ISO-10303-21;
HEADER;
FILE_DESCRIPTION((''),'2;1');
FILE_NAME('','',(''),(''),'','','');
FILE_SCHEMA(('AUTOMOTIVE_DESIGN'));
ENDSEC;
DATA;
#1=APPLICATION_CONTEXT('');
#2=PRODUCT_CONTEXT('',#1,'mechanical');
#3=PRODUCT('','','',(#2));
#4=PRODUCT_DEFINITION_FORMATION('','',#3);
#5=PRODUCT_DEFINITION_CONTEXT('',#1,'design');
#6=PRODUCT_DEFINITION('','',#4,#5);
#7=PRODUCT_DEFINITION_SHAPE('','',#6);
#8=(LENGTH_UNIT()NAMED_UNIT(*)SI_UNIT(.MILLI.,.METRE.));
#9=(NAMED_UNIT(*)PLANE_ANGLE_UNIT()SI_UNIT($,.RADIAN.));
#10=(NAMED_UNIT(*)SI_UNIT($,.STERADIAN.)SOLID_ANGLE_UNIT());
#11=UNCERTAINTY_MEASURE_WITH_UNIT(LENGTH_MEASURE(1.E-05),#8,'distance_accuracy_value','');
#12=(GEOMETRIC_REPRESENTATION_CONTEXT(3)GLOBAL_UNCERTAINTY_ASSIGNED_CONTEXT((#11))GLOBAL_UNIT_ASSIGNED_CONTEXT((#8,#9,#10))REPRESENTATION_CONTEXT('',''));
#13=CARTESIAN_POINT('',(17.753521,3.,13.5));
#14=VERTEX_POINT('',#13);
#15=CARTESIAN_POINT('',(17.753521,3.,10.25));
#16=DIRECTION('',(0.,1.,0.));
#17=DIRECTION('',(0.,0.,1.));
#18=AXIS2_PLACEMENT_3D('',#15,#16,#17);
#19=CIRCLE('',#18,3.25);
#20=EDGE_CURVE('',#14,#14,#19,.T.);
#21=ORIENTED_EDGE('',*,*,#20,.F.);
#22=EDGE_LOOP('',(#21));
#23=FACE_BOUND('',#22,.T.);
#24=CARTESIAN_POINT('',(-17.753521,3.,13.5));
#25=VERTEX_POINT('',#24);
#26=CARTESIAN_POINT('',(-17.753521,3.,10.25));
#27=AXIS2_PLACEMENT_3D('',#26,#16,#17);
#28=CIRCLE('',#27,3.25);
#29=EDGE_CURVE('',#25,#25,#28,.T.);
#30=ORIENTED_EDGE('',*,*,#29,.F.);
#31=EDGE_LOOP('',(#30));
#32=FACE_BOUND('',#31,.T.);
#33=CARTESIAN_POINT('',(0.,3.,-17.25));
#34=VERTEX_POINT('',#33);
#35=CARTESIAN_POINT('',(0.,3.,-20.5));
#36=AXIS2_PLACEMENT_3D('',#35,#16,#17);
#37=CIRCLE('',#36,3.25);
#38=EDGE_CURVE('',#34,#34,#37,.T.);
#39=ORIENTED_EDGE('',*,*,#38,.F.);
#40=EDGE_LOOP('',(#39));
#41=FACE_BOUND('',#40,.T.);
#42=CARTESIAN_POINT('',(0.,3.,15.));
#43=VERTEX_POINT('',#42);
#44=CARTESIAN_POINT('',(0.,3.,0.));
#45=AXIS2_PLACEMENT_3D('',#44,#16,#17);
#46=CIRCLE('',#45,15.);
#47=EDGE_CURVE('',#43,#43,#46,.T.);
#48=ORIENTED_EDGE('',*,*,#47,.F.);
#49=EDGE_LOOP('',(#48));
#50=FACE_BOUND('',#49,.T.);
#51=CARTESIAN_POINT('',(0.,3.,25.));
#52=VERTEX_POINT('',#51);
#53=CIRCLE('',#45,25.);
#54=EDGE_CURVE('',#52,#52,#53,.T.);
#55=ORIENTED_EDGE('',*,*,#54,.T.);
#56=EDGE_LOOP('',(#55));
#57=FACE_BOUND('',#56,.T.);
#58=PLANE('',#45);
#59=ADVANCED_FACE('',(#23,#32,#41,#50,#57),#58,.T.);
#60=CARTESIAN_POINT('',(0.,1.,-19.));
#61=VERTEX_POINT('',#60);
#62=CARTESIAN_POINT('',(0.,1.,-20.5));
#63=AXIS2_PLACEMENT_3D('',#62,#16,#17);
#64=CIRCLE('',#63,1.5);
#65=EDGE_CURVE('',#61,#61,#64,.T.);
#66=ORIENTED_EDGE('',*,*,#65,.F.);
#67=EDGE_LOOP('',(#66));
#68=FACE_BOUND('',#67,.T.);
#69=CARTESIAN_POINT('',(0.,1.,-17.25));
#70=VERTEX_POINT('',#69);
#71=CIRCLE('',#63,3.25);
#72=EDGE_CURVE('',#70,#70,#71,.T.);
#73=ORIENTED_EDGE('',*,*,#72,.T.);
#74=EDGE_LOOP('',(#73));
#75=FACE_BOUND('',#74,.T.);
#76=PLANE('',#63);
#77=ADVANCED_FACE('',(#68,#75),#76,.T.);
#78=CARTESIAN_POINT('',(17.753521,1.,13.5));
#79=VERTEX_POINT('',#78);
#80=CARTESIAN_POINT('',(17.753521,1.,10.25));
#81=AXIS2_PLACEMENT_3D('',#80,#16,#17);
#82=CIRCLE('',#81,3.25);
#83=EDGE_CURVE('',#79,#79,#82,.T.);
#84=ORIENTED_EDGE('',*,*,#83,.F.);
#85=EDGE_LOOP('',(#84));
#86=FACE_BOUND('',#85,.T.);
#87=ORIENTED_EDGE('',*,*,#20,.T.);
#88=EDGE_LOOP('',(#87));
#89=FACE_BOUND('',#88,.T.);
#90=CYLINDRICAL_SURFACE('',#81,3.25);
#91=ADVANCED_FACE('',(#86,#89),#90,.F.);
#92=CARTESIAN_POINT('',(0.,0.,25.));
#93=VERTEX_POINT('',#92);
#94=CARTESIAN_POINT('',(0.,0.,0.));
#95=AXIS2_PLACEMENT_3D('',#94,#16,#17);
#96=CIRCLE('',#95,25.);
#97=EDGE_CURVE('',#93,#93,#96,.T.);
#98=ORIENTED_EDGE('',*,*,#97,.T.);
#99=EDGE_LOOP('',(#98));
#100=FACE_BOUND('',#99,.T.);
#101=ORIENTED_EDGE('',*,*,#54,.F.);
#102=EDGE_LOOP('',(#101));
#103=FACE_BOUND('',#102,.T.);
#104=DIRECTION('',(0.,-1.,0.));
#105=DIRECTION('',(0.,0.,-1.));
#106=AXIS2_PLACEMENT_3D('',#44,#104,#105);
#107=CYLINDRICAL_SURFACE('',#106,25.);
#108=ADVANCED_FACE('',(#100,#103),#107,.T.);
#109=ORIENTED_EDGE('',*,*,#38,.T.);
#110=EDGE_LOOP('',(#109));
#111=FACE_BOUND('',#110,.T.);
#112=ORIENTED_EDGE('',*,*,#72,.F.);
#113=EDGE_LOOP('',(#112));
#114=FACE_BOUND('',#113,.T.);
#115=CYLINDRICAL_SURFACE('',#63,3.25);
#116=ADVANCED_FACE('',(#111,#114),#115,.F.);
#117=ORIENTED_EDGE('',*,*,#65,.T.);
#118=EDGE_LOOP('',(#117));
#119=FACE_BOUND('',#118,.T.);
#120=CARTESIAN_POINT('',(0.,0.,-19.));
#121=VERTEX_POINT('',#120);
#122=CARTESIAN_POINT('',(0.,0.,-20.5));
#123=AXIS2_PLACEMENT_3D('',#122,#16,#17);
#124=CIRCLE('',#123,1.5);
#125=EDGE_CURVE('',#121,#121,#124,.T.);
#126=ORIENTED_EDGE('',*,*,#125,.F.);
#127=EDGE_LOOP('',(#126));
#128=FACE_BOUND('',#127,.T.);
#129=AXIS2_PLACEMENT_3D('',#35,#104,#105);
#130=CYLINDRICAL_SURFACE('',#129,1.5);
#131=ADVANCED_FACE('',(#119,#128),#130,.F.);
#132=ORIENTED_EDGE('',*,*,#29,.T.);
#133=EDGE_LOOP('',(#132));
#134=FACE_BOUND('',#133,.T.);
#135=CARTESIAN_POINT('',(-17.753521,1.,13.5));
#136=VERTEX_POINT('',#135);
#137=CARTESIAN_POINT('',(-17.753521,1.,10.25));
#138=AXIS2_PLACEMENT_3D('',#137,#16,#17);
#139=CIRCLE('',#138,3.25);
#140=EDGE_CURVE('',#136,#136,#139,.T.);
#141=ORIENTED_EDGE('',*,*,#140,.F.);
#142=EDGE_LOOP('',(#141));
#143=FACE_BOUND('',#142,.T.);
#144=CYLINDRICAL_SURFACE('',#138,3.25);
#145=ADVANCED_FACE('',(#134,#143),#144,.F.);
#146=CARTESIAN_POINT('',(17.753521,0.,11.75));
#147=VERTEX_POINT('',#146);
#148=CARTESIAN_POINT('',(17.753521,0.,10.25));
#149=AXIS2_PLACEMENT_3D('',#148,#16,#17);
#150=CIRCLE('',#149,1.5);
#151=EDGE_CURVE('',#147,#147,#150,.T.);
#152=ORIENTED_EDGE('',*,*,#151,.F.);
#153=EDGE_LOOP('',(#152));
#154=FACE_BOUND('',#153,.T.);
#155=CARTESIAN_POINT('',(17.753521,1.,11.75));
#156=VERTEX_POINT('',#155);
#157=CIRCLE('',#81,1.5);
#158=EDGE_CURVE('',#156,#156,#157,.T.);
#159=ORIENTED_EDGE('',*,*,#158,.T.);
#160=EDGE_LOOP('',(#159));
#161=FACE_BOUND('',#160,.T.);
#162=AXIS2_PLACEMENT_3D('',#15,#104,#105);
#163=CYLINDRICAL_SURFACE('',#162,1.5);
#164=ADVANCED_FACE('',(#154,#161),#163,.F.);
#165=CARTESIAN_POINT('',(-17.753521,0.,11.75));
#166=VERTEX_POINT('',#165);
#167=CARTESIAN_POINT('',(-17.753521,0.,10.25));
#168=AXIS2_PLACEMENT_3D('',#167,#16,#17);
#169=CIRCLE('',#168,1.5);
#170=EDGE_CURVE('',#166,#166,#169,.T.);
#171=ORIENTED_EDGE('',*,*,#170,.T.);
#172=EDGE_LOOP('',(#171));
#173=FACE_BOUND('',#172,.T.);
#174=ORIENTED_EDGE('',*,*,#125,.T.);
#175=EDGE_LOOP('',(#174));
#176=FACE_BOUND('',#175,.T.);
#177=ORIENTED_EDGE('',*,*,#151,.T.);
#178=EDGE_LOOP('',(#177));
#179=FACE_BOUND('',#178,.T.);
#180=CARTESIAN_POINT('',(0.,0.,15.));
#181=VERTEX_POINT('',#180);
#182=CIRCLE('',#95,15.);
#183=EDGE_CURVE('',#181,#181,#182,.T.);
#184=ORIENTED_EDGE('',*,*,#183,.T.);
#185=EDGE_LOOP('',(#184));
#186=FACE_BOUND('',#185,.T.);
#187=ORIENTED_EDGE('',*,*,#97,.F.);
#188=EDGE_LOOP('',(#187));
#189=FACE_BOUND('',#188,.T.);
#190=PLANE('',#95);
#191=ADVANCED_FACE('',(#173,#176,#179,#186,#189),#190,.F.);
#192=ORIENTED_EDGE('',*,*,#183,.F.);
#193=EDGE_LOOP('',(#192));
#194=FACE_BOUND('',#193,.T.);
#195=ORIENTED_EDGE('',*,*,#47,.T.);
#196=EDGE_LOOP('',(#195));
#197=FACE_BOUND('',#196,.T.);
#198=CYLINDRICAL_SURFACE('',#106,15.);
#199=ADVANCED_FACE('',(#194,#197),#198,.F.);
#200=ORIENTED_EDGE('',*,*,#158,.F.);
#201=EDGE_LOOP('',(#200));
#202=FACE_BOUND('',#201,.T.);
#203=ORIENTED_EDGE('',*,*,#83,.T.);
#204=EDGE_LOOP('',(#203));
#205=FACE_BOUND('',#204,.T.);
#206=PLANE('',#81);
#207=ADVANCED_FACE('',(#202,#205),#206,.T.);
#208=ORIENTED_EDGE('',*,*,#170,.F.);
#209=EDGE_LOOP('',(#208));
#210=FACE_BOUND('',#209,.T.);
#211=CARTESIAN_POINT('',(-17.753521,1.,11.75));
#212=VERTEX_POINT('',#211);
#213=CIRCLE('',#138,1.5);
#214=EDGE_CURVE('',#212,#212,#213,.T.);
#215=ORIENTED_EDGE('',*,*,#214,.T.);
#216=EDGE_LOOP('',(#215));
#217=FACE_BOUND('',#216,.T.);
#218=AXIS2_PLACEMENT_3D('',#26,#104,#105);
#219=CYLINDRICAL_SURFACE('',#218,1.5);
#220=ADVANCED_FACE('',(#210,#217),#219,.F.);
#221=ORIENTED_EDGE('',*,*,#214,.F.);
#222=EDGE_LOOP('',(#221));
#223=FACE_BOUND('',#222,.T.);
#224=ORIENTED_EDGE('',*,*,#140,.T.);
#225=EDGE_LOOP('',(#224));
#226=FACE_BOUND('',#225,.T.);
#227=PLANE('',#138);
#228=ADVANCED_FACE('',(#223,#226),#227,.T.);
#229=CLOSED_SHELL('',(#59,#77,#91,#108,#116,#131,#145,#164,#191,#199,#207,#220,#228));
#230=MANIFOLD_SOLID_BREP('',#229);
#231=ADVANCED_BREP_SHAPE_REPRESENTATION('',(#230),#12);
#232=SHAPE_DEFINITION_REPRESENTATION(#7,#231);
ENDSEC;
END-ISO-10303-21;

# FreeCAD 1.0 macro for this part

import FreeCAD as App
import Part
import Sketcher
Q = App.Units.Quantity

doc = App.newDocument("Part")
params = doc.addObject("Spreadsheet::Sheet", "Params")
for row, (alias, value) in enumerate([
    ("sketch1_diameter", "50 mm"),
    ("sketch1_diameter2", "3 mm"),
    ("sketch1_diameter3", "30 mm"),
    ("pad1_length", "3 mm"),
    ("sketch2_diameter", "6.5 mm"),
    ("pocket1_length", "2 mm"),
], start=1):
    params.set(f"A{row}", alias)
    params.set(f"B{row}", "=" + value)
    params.setAlias(f"B{row}", alias)

body = doc.addObject("PartDesign::Body", "Body")

sketch1 = body.newObject("Sketcher::SketchObject", "Sketch")
sketch1.AttachmentSupport = (doc.getObject("XZ_Plane"), [""])
sketch1.MapMode = "FlatFace"
sketch1.addGeometry(Part.Circle(App.Vector(0, 0, 0), App.Vector(0, 0, 1), 25), False)
sketch1.addGeometry(Part.Circle(App.Vector(0, -20.5, 0), App.Vector(0, 0, 1), 1.5), False)
sketch1.addGeometry(Part.Circle(App.Vector(-17.8, 10.2, 0), App.Vector(0, 0, 1), 1.5), False)
sketch1.addGeometry(Part.Circle(App.Vector(0, 0, 0), App.Vector(0, 0, 1), 15), False)
sketch1.addGeometry(Part.Circle(App.Vector(17.8, 10.2, 0), App.Vector(0, 0, 1), 1.5), False)
sketch1.addConstraint(Sketcher.Constraint("Coincident", 0, 3, -1, 1))
sketch1.addConstraint(Sketcher.Constraint("Coincident", 3, 3, -1, 1))
sketch1.addConstraint(Sketcher.Constraint("Equal", 1, 2))
sketch1.addConstraint(Sketcher.Constraint("Equal", 2, 4))
sketch1.addConstraint(Sketcher.Constraint("Symmetric", 2, 3, 4, 3, -2))
sketch1.addConstraint(Sketcher.Constraint("PointOnObject", 1, 3, -2))
sketch1.addConstraint(Sketcher.Constraint("Diameter", 0, Q("50 mm")))
sketch1.addConstraint(Sketcher.Constraint("Diameter", 1, Q("3 mm")))
sketch1.addConstraint(Sketcher.Constraint("Diameter", 3, Q("30 mm")))
sketch1.addConstraint(Sketcher.Constraint("DistanceY", 1, 3, -1, 1, Q("20.5 mm")))
sketch1.addConstraint(Sketcher.Constraint("DistanceY", -1, 1, 2, 3, Q("10.25 mm")))
sketch1.addConstraint(Sketcher.Constraint("DistanceX", 2, 3, -1, 1, Q("17.753521 mm")))
sketch1.setExpression("Constraints[6]", "Params.sketch1_diameter")
sketch1.setExpression("Constraints[7]", "Params.sketch1_diameter2")
sketch1.setExpression("Constraints[8]", "Params.sketch1_diameter3")
pad1 = body.newObject("PartDesign::Pad", "Pad")
pad1.Profile = sketch1
pad1.setExpression("Length", "Params.pad1_length")
pad1.Reversed = True

sketch2 = body.newObject("Sketcher::SketchObject", "Sketch001")
sketch2.AttachmentSupport = (doc.getObject("XZ_Plane"), [""])
sketch2.MapMode = "FlatFace"
sketch2.AttachmentOffset = App.Placement(App.Vector(0, 0, -3), App.Rotation())
sketch2.addGeometry(Part.Circle(App.Vector(0, -20.5, 0), App.Vector(0, 0, 1), 3.2), False)
sketch2.addGeometry(Part.Circle(App.Vector(17.8, 10.2, 0), App.Vector(0, 0, 1), 3.2), False)
sketch2.addGeometry(Part.Circle(App.Vector(-17.8, 10.2, 0), App.Vector(0, 0, 1), 3.2), False)
sketch2.addConstraint(Sketcher.Constraint("Equal", 0, 1))
sketch2.addConstraint(Sketcher.Constraint("Equal", 1, 2))
sketch2.addConstraint(Sketcher.Constraint("Symmetric", 1, 3, 2, 3, -2))
sketch2.addConstraint(Sketcher.Constraint("PointOnObject", 0, 3, -2))
sketch2.addConstraint(Sketcher.Constraint("Diameter", 0, Q("6.5 mm")))
sketch2.addConstraint(Sketcher.Constraint("DistanceY", 0, 3, -1, 1, Q("20.5 mm")))
sketch2.addConstraint(Sketcher.Constraint("DistanceY", -1, 1, 1, 3, Q("10.25 mm")))
sketch2.addConstraint(Sketcher.Constraint("DistanceX", -1, 1, 1, 3, Q("17.753521 mm")))
sketch2.setExpression("Constraints[4]", "Params.sketch2_diameter")
pocket1 = body.newObject("PartDesign::Pocket", "Pocket")
pocket1.Profile = sketch2
pocket1.setExpression("Length", "Params.pocket1_length")
pocket1.Reversed = True

doc.recompute()
